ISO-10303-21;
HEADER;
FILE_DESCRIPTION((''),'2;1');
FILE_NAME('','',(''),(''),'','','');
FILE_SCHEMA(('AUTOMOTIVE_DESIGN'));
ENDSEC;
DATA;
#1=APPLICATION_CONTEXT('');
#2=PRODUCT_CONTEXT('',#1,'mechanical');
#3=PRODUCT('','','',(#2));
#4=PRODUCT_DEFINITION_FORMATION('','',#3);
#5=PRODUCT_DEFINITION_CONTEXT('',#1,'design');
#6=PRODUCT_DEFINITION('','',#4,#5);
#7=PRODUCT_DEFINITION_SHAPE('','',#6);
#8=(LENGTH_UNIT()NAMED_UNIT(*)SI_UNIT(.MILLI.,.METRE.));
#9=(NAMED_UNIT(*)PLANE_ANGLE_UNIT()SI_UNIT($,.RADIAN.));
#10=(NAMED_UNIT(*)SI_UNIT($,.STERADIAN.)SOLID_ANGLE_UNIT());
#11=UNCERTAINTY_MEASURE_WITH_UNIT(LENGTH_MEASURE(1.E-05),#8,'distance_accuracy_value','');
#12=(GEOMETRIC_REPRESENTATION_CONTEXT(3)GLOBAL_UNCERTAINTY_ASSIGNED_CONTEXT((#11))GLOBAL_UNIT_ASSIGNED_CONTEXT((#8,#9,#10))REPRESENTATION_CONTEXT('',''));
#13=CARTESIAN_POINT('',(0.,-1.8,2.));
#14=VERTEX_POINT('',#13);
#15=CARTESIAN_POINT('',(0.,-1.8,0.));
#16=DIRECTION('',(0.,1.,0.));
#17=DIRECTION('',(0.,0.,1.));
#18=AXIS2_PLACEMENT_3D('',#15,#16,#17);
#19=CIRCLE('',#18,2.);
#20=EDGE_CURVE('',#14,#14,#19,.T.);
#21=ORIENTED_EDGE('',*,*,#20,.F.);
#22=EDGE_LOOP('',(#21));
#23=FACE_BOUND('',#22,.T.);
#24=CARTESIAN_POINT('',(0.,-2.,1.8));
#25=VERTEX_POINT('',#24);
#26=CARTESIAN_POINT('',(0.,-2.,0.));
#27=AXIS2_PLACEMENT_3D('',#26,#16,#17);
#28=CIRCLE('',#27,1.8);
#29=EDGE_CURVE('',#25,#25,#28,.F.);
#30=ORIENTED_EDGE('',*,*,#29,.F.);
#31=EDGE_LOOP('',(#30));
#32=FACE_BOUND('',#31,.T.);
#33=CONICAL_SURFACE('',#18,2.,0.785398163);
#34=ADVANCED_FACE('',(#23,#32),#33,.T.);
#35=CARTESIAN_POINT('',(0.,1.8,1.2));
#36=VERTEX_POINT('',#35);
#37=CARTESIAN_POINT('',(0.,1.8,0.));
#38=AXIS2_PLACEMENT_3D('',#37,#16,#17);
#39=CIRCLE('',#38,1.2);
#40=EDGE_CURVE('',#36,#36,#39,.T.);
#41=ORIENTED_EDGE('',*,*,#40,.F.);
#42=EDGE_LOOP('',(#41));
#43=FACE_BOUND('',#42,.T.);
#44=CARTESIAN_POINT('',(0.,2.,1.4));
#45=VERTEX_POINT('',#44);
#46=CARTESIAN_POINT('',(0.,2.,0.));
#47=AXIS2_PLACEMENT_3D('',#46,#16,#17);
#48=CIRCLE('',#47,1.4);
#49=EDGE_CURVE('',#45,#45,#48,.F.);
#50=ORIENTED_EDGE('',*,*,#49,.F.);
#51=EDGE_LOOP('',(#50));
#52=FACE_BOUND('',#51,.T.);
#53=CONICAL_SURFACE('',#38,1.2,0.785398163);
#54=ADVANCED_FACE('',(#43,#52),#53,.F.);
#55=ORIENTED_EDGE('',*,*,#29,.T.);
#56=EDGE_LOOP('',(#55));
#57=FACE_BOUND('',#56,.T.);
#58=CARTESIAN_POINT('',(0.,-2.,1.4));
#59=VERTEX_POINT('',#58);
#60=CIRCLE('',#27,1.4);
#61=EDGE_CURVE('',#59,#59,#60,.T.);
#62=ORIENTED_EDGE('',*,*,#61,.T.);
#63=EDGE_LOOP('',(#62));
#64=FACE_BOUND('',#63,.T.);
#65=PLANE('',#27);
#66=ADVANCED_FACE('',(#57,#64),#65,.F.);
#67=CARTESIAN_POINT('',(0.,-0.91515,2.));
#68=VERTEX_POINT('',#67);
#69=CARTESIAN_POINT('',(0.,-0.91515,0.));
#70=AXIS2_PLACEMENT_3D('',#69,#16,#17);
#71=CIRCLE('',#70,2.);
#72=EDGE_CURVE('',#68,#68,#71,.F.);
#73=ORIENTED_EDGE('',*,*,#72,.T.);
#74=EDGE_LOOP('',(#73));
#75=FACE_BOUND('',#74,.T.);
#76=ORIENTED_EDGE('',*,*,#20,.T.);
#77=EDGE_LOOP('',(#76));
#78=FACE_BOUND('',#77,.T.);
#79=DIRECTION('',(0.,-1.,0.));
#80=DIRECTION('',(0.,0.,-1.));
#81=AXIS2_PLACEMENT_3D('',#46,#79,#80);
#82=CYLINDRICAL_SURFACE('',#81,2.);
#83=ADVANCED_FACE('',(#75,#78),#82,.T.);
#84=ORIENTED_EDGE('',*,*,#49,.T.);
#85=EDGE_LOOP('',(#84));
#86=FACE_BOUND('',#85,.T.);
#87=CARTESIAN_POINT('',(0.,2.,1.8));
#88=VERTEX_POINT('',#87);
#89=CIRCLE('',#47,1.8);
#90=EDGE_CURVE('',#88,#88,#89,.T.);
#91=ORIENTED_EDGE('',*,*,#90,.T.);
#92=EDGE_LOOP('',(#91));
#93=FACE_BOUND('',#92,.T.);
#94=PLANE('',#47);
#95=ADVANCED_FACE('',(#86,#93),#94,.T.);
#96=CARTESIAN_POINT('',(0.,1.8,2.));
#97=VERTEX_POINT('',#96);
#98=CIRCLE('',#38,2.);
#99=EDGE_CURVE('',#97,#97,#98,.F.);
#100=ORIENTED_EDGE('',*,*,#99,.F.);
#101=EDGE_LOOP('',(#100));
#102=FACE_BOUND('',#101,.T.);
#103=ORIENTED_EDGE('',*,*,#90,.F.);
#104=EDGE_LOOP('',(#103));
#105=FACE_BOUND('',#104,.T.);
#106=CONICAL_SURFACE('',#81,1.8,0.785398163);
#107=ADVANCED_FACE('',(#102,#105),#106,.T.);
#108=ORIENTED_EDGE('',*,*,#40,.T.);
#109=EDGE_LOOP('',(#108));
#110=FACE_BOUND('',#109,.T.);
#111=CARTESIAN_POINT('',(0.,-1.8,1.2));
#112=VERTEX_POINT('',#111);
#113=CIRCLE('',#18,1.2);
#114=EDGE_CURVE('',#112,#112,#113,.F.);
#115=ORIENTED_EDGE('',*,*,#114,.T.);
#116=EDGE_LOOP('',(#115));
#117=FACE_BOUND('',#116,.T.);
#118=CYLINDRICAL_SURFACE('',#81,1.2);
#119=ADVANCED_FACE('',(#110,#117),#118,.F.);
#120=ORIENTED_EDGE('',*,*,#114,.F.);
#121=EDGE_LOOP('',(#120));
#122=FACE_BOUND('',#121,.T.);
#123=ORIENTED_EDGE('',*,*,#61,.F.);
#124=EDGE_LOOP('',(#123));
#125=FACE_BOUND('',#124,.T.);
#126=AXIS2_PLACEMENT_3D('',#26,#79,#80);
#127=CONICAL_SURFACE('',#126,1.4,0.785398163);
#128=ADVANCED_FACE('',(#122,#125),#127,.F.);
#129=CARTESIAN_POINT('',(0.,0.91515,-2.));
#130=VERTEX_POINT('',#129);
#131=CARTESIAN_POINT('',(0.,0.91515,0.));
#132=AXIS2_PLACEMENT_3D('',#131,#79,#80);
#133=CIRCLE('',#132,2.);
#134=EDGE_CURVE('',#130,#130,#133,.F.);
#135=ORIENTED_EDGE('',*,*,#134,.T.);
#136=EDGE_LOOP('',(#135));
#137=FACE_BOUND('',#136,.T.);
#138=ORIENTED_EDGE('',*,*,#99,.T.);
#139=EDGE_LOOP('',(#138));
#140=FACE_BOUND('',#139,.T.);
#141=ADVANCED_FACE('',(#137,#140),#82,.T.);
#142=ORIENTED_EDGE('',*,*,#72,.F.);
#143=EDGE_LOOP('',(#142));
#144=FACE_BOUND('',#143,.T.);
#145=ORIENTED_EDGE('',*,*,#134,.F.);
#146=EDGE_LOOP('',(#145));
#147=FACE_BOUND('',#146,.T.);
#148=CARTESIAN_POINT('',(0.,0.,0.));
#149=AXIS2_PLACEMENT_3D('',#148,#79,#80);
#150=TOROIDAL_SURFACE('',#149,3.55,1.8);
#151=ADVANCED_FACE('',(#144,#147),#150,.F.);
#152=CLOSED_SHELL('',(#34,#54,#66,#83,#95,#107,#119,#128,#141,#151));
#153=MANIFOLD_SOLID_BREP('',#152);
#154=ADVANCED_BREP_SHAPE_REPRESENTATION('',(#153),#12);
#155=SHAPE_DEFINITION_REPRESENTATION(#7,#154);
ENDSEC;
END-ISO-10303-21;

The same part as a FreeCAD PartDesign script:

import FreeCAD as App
import Part
import Sketcher
from FreeCAD import Vector
Q = App.Units.Quantity


def edges_at(feature, points):
    """Names of the edges that pass closest to the given points."""
    edges = feature.Shape.Edges
    near = lambda p: min(range(len(edges)), key=lambda i: edges[i].distToShape(Part.Vertex(*p))[0])
    return sorted({f"Edge{near(p) + 1}" for p in points})

doc = App.newDocument("Part")
body = doc.addObject("PartDesign::Body", "Body")

# Sketch on XZ plane
sketch1 = body.newObject("Sketcher::SketchObject", "Sketch")
sketch1.AttachmentSupport = (doc.getObject("XZ_Plane"), [""])
sketch1.MapMode = "FlatFace"
sketch1.addGeometry(Part.Circle(Vector(0, 0, 0), Vector(0, 0, 1), 2), False)
sketch1.addGeometry(Part.Circle(Vector(0, 0, 0), Vector(0, 0, 1), 1.2), False)
sketch1.addConstraint(Sketcher.Constraint("Coincident", 0, 3, -1, 1))
sketch1.addConstraint(Sketcher.Constraint("Coincident", 1, 3, -1, 1))
sketch1.addConstraint(Sketcher.Constraint("Diameter", 0, Q("4 mm")))
sketch1.addConstraint(Sketcher.Constraint("Diameter", 1, Q("2.4 mm")))
pad1 = body.newObject("PartDesign::Pad", "Pad")
pad1.Profile = sketch1
pad1.Length = 4
pad1.Midplane = True
doc.recompute()

chamfer = body.newObject("PartDesign::Chamfer", "Chamfer")
chamfer.Base = (pad1, edges_at(pad1, [
    (-2, -2, 0),
    (-2, 2, 0),
    (-1.2, -2, 0),
    (-1.2, 2, 0),
]))
chamfer.Size = 0.2

# Sketch on YZ plane
sketch2 = body.newObject("Sketcher::SketchObject", "Sketch001")
sketch2.AttachmentSupport = (doc.getObject("YZ_Plane"), [""])
sketch2.MapMode = "FlatFace"
sketch2.addGeometry(Part.Circle(Vector(0, -3.5, 0), Vector(0, 0, 1), 1.8), False)
sketch2.addConstraint(Sketcher.Constraint("PointOnObject", 0, 3, -2))
sketch2.addConstraint(Sketcher.Constraint("Diameter", 0, Q("3.6 mm")))
sketch2.addConstraint(Sketcher.Constraint("DistanceY", 0, 3, -1, 1, Q("3.55 mm")))

# Sketch on XZ plane
sketch3 = body.newObject("Sketcher::SketchObject", "Sketch002")
sketch3.AttachmentSupport = (doc.getObject("XZ_Plane"), [""])
sketch3.MapMode = "FlatFace"
sketch3.addGeometry(Part.Circle(Vector(0, 0, 0), Vector(0, 0, 1), 3.6), False)
sketch3.addConstraint(Sketcher.Constraint("Coincident", 0, 3, -1, 1))
sketch3.addConstraint(Sketcher.Constraint("Diameter", 0, Q("7.106301 mm")))
doc.recompute()

subtractivepipe = body.newObject("PartDesign::SubtractivePipe", "SubtractivePipe")
subtractivepipe.Profile = sketch2
subtractivepipe.Spine = (sketch3, ["Edge1"])

doc.recompute()
